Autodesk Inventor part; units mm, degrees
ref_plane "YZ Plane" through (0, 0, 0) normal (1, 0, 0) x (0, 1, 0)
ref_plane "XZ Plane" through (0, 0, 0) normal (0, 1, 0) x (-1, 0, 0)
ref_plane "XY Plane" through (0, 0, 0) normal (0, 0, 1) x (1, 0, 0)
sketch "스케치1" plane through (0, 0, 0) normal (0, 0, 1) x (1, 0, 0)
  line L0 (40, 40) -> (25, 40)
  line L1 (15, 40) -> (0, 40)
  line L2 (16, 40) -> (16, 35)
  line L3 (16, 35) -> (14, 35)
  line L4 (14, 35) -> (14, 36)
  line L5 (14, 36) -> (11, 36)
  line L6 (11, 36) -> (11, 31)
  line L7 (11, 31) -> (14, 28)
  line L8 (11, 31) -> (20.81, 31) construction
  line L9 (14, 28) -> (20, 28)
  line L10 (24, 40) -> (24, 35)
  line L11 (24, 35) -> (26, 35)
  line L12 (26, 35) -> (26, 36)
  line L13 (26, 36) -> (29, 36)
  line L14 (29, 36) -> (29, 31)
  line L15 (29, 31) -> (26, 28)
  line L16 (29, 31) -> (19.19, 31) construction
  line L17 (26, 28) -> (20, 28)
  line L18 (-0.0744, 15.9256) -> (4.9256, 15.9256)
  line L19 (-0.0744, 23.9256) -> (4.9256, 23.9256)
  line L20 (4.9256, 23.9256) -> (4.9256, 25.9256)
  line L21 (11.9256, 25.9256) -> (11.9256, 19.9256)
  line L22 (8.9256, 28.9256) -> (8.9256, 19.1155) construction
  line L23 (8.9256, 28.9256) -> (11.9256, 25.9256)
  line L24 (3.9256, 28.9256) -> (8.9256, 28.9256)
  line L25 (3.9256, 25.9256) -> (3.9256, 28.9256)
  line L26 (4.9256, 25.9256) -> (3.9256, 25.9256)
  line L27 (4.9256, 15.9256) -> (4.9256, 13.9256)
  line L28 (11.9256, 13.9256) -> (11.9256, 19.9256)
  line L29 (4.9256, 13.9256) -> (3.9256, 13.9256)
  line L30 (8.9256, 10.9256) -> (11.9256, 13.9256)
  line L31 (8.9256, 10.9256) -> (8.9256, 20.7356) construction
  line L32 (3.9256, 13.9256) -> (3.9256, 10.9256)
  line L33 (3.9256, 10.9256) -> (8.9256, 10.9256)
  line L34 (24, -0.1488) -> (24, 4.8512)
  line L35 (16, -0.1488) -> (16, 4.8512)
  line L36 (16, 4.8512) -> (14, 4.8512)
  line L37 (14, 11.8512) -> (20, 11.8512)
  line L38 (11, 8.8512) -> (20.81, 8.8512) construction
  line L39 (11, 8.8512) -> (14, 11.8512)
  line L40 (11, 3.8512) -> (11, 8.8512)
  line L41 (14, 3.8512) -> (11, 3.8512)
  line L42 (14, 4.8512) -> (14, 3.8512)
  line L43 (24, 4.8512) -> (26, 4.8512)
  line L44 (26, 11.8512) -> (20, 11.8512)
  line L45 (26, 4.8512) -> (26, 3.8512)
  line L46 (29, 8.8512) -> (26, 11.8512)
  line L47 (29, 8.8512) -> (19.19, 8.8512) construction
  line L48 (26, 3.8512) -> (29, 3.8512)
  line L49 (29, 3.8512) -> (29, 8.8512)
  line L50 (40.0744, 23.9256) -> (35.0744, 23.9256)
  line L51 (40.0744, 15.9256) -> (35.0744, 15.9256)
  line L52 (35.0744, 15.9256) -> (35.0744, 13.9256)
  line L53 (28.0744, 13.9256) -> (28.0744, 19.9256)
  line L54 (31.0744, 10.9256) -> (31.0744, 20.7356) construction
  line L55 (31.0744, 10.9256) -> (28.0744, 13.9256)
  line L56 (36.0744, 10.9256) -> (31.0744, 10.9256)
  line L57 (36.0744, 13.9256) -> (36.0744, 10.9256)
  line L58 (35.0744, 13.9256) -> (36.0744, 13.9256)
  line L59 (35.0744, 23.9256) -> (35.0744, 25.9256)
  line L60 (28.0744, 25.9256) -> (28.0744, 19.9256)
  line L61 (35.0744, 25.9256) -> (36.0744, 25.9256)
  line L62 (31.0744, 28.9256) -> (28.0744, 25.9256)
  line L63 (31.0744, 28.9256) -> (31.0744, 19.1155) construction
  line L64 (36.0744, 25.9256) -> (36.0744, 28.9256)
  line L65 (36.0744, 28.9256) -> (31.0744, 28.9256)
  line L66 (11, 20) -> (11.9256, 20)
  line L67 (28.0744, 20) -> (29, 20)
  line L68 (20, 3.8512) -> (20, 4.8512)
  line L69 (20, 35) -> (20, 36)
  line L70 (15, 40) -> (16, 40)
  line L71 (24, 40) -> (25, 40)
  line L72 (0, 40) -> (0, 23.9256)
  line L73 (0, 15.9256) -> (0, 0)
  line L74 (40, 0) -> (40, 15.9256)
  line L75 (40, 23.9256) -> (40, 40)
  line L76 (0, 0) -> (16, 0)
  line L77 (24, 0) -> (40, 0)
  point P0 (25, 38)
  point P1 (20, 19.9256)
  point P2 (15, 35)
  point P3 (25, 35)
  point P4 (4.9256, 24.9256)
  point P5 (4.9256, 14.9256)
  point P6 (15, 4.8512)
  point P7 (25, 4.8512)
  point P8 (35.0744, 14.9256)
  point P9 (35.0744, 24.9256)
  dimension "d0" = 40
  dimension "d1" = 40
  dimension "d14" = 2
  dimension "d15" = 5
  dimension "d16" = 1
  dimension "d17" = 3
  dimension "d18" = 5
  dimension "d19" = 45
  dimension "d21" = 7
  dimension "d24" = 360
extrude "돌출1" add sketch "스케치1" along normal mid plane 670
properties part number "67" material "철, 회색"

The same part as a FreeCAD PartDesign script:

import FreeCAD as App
import Part
import Sketcher
Q = App.Units.Quantity

doc = App.newDocument("Part")
body = doc.addObject("PartDesign::Body", "Body")

sketch1 = body.newObject("Sketcher::SketchObject", "Sketch")
sketch1.AttachmentSupport = (doc.getObject("XY_Plane"), [""])
sketch1.MapMode = "FlatFace"
sketch1.addGeometry([
    Part.LineSegment(App.Vector(40, 23.9256, 0), App.Vector(40, 40, 0)),
    Part.LineSegment(App.Vector(40, 40, 0), App.Vector(24, 40, 0)),
    Part.LineSegment(App.Vector(24, 40, 0), App.Vector(24, 35, 0)),
    Part.LineSegment(App.Vector(24, 35, 0), App.Vector(26, 35, 0)),
    Part.LineSegment(App.Vector(26, 35, 0), App.Vector(26, 36, 0)),
    Part.LineSegment(App.Vector(26, 36, 0), App.Vector(29, 36, 0)),
    Part.LineSegment(App.Vector(29, 36, 0), App.Vector(29, 31, 0)),
    Part.LineSegment(App.Vector(29, 31, 0), App.Vector(26, 28, 0)),
    Part.LineSegment(App.Vector(26, 28, 0), App.Vector(14, 28, 0)),
    Part.LineSegment(App.Vector(14, 28, 0), App.Vector(11, 31, 0)),
    Part.LineSegment(App.Vector(11, 31, 0), App.Vector(11, 36, 0)),
    Part.LineSegment(App.Vector(11, 36, 0), App.Vector(14, 36, 0)),
    Part.LineSegment(App.Vector(14, 36, 0), App.Vector(14, 35, 0)),
    Part.LineSegment(App.Vector(14, 35, 0), App.Vector(16, 35, 0)),
    Part.LineSegment(App.Vector(16, 35, 0), App.Vector(16, 40, 0)),
    Part.LineSegment(App.Vector(16, 40, 0), App.Vector(0, 40, 0)),
    Part.LineSegment(App.Vector(0, 40, 0), App.Vector(0, 23.9256, 0)),
    Part.LineSegment(App.Vector(0, 23.9256, 0), App.Vector(4.9256, 23.9256, 0)),
    Part.LineSegment(App.Vector(4.9256, 23.9256, 0), App.Vector(4.9256, 25.9256, 0)),
    Part.LineSegment(App.Vector(4.9256, 25.9256, 0), App.Vector(3.9256, 25.9256, 0)),
    Part.LineSegment(App.Vector(3.9256, 25.9256, 0), App.Vector(3.9256, 28.9256, 0)),
    Part.LineSegment(App.Vector(3.9256, 28.9256, 0), App.Vector(8.9256, 28.9256, 0)),
    Part.LineSegment(App.Vector(8.9256, 28.9256, 0), App.Vector(11.9256, 25.9256, 0)),
    Part.LineSegment(App.Vector(11.9256, 25.9256, 0), App.Vector(11.9256, 13.9256, 0)),
    Part.LineSegment(App.Vector(11.9256, 13.9256, 0), App.Vector(8.9256, 10.9256, 0)),
    Part.LineSegment(App.Vector(8.9256, 10.9256, 0), App.Vector(3.9256, 10.9256, 0)),
    Part.LineSegment(App.Vector(3.9256, 10.9256, 0), App.Vector(3.9256, 13.9256, 0)),
    Part.LineSegment(App.Vector(3.9256, 13.9256, 0), App.Vector(4.9256, 13.9256, 0)),
    Part.LineSegment(App.Vector(4.9256, 13.9256, 0), App.Vector(4.9256, 15.9256, 0)),
    Part.LineSegment(App.Vector(4.9256, 15.9256, 0), App.Vector(0, 15.9256, 0)),
    Part.LineSegment(App.Vector(0, 15.9256, 0), App.Vector(0, 0, 0)),
    Part.LineSegment(App.Vector(0, 0, 0), App.Vector(16, 0, 0)),
    Part.LineSegment(App.Vector(16, 0, 0), App.Vector(16, 4.8512, 0)),
    Part.LineSegment(App.Vector(16, 4.8512, 0), App.Vector(14, 4.8512, 0)),
    Part.LineSegment(App.Vector(14, 4.8512, 0), App.Vector(14, 3.8512, 0)),
    Part.LineSegment(App.Vector(14, 3.8512, 0), App.Vector(11, 3.8512, 0)),
    Part.LineSegment(App.Vector(11, 3.8512, 0), App.Vector(11, 8.8512, 0)),
    Part.LineSegment(App.Vector(11, 8.8512, 0), App.Vector(14, 11.8512, 0)),
    Part.LineSegment(App.Vector(14, 11.8512, 0), App.Vector(26, 11.8512, 0)),
    Part.LineSegment(App.Vector(26, 11.8512, 0), App.Vector(29, 8.8512, 0)),
    Part.LineSegment(App.Vector(29, 8.8512, 0), App.Vector(29, 3.8512, 0)),
    Part.LineSegment(App.Vector(29, 3.8512, 0), App.Vector(26, 3.8512, 0)),
    Part.LineSegment(App.Vector(26, 3.8512, 0), App.Vector(26, 4.8512, 0)),
    Part.LineSegment(App.Vector(26, 4.8512, 0), App.Vector(24, 4.8512, 0)),
    Part.LineSegment(App.Vector(24, 4.8512, 0), App.Vector(24, 0, 0)),
    Part.LineSegment(App.Vector(24, 0, 0), App.Vector(40, 0, 0)),
    Part.LineSegment(App.Vector(40, 0, 0), App.Vector(40, 15.9256, 0)),
    Part.LineSegment(App.Vector(40, 15.9256, 0), App.Vector(35.0744, 15.9256, 0)),
    Part.LineSegment(App.Vector(35.0744, 15.9256, 0), App.Vector(35.0744, 13.9256, 0)),
    Part.LineSegment(App.Vector(35.0744, 13.9256, 0), App.Vector(36.0744, 13.9256, 0)),
    Part.LineSegment(App.Vector(36.0744, 13.9256, 0), App.Vector(36.0744, 10.9256, 0)),
    Part.LineSegment(App.Vector(36.0744, 10.9256, 0), App.Vector(31.0744, 10.9256, 0)),
    Part.LineSegment(App.Vector(31.0744, 10.9256, 0), App.Vector(28.0744, 13.9256, 0)),
    Part.LineSegment(App.Vector(28.0744, 13.9256, 0), App.Vector(28.0744, 25.9256, 0)),
    Part.LineSegment(App.Vector(28.0744, 25.9256, 0), App.Vector(31.0744, 28.9256, 0)),
    Part.LineSegment(App.Vector(31.0744, 28.9256, 0), App.Vector(36.0744, 28.9256, 0)),
    Part.LineSegment(App.Vector(36.0744, 28.9256, 0), App.Vector(36.0744, 25.9256, 0)),
    Part.LineSegment(App.Vector(36.0744, 25.9256, 0), App.Vector(35.0744, 25.9256, 0)),
    Part.LineSegment(App.Vector(35.0744, 25.9256, 0), App.Vector(35.0744, 23.9256, 0)),
    Part.LineSegment(App.Vector(35.0744, 23.9256, 0), App.Vector(40, 23.9256, 0)),
], False)
sketch1.addConstraint([
    Sketcher.Constraint("Coincident", 0, 2, 1, 1),
    Sketcher.Constraint("Coincident", 1, 2, 2, 1),
    Sketcher.Constraint("Coincident", 2, 2, 3, 1),
    Sketcher.Constraint("Coincident", 3, 2, 4, 1),
    Sketcher.Constraint("Coincident", 4, 2, 5, 1),
    Sketcher.Constraint("Coincident", 5, 2, 6, 1),
    Sketcher.Constraint("Coincident", 6, 2, 7, 1),
    Sketcher.Constraint("Coincident", 7, 2, 8, 1),
    Sketcher.Constraint("Coincident", 8, 2, 9, 1),
    Sketcher.Constraint("Coincident", 9, 2, 10, 1),
    Sketcher.Constraint("Coincident", 10, 2, 11, 1),
    Sketcher.Constraint("Coincident", 11, 2, 12, 1),
    Sketcher.Constraint("Coincident", 12, 2, 13, 1),
    Sketcher.Constraint("Coincident", 13, 2, 14, 1),
    Sketcher.Constraint("Coincident", 14, 2, 15, 1),
    Sketcher.Constraint("Coincident", 15, 2, 16, 1),
    Sketcher.Constraint("Coincident", 16, 2, 17, 1),
    Sketcher.Constraint("Coincident", 17, 2, 18, 1),
    Sketcher.Constraint("Coincident", 18, 2, 19, 1),
    Sketcher.Constraint("Coincident", 19, 2, 20, 1),
    Sketcher.Constraint("Coincident", 20, 2, 21, 1),
    Sketcher.Constraint("Coincident", 21, 2, 22, 1),
    Sketcher.Constraint("Coincident", 22, 2, 23, 1),
    Sketcher.Constraint("Coincident", 23, 2, 24, 1),
    Sketcher.Constraint("Coincident", 24, 2, 25, 1),
    Sketcher.Constraint("Coincident", 25, 2, 26, 1),
    Sketcher.Constraint("Coincident", 26, 2, 27, 1),
    Sketcher.Constraint("Coincident", 27, 2, 28, 1),
    Sketcher.Constraint("Coincident", 28, 2, 29, 1),
    Sketcher.Constraint("Coincident", 29, 2, 30, 1),
    Sketcher.Constraint("Coincident", 30, 2, 31, 1),
    Sketcher.Constraint("Coincident", 31, 2, 32, 1),
    Sketcher.Constraint("Coincident", 32, 2, 33, 1),
    Sketcher.Constraint("Coincident", 33, 2, 34, 1),
    Sketcher.Constraint("Coincident", 34, 2, 35, 1),
    Sketcher.Constraint("Coincident", 35, 2, 36, 1),
    Sketcher.Constraint("Coincident", 36, 2, 37, 1),
    Sketcher.Constraint("Coincident", 37, 2, 38, 1),
    Sketcher.Constraint("Coincident", 38, 2, 39, 1),
    Sketcher.Constraint("Coincident", 39, 2, 40, 1),
    Sketcher.Constraint("Coincident", 40, 2, 41, 1),
    Sketcher.Constraint("Coincident", 41, 2, 42, 1),
    Sketcher.Constraint("Coincident", 42, 2, 43, 1),
    Sketcher.Constraint("Coincident", 43, 2, 44, 1),
    Sketcher.Constraint("Coincident", 44, 2, 45, 1),
    Sketcher.Constraint("Coincident", 45, 2, 46, 1),
    Sketcher.Constraint("Coincident", 46, 2, 47, 1),
    Sketcher.Constraint("Coincident", 47, 2, 48, 1),
    Sketcher.Constraint("Coincident", 48, 2, 49, 1),
    Sketcher.Constraint("Coincident", 49, 2, 50, 1),
    Sketcher.Constraint("Coincident", 50, 2, 51, 1),
    Sketcher.Constraint("Coincident", 51, 2, 52, 1),
    Sketcher.Constraint("Coincident", 52, 2, 53, 1),
    Sketcher.Constraint("Coincident", 53, 2, 54, 1),
    Sketcher.Constraint("Coincident", 54, 2, 55, 1),
    Sketcher.Constraint("Coincident", 55, 2, 56, 1),
    Sketcher.Constraint("Coincident", 56, 2, 57, 1),
    Sketcher.Constraint("Coincident", 57, 2, 58, 1),
    Sketcher.Constraint("Coincident", 58, 2, 59, 1),
    Sketcher.Constraint("Coincident", 59, 2, 0, 1),
    Sketcher.Constraint("Vertical", 0),
    Sketcher.Constraint("Horizontal", 1),
    Sketcher.Constraint("Vertical", 2),
    Sketcher.Constraint("Horizontal", 3),
    Sketcher.Constraint("Vertical", 4),
    Sketcher.Constraint("Horizontal", 5),
    Sketcher.Constraint("Vertical", 6),
    Sketcher.Constraint("Horizontal", 8),
    Sketcher.Constraint("Vertical", 10),
    Sketcher.Constraint("Horizontal", 11),
    Sketcher.Constraint("Vertical", 12),
    Sketcher.Constraint("Horizontal", 13),
    Sketcher.Constraint("Vertical", 14),
    Sketcher.Constraint("Horizontal", 15),
    Sketcher.Constraint("Vertical", 16),
    Sketcher.Constraint("Horizontal", 17),
    Sketcher.Constraint("Vertical", 18),
    Sketcher.Constraint("Horizontal", 19),
    Sketcher.Constraint("Vertical", 20),
    Sketcher.Constraint("Horizontal", 21),
    Sketcher.Constraint("Vertical", 23),
    Sketcher.Constraint("Horizontal", 25),
    Sketcher.Constraint("Vertical", 26),
    Sketcher.Constraint("Horizontal", 27),
    Sketcher.Constraint("Vertical", 28),
    Sketcher.Constraint("Horizontal", 29),
    Sketcher.Constraint("Vertical", 30),
    Sketcher.Constraint("Horizontal", 31),
    Sketcher.Constraint("Vertical", 32),
    Sketcher.Constraint("Horizontal", 33),
    Sketcher.Constraint("Vertical", 34),
    Sketcher.Constraint("Horizontal", 35),
    Sketcher.Constraint("Vertical", 36),
    Sketcher.Constraint("Horizontal", 38),
    Sketcher.Constraint("Vertical", 40),
    Sketcher.Constraint("Horizontal", 41),
    Sketcher.Constraint("Vertical", 42),
    Sketcher.Constraint("Horizontal", 43),
    Sketcher.Constraint("Vertical", 44),
    Sketcher.Constraint("Horizontal", 45),
    Sketcher.Constraint("Vertical", 46),
    Sketcher.Constraint("Horizontal", 47),
    Sketcher.Constraint("Vertical", 48),
    Sketcher.Constraint("Horizontal", 49),
    Sketcher.Constraint("Vertical", 50),
    Sketcher.Constraint("Horizontal", 51),
    Sketcher.Constraint("Vertical", 53),
    Sketcher.Constraint("Horizontal", 55),
    Sketcher.Constraint("Vertical", 56),
    Sketcher.Constraint("Horizontal", 57),
    Sketcher.Constraint("Vertical", 58),
    Sketcher.Constraint("Horizontal", 59),
    Sketcher.Constraint("Coincident", 30, 2, -1, 1),
    Sketcher.Constraint("PointOnObject", 15, 2, -2),
    Sketcher.Constraint("PointOnObject", 44, 2, -1),
    Sketcher.Constraint("Perpendicular", 7, 9),
    Sketcher.Constraint("Parallel", 9, 22),
    Sketcher.Constraint("Perpendicular", 22, 24),
    Sketcher.Constraint("Parallel", 24, 37),
    Sketcher.Constraint("Perpendicular", 37, 39),
    Sketcher.Constraint("Parallel", 39, 52),
    Sketcher.Constraint("Perpendicular", 52, 54),
    Sketcher.Constraint("Horizontal", 6, 2, 9, 2),
    Sketcher.Constraint("Horizontal", 5, 2, 10, 2),
    Sketcher.Constraint("Horizontal", 3, 2, 12, 2),
    Sketcher.Constraint("Horizontal", 1, 2, 14, 2),
    Sketcher.Constraint("Horizontal", 19, 2, 22, 2),
    Sketcher.Constraint("Horizontal", 23, 2, 26, 2),
    Sketcher.Constraint("Horizontal", 36, 2, 39, 2),
    Sketcher.Constraint("Horizontal", 35, 2, 40, 2),
    Sketcher.Constraint("Horizontal", 33, 2, 42, 2),
    Sketcher.Constraint("Horizontal", 29, 2, 46, 2),
    Sketcher.Constraint("Horizontal", 27, 2, 48, 2),
    Sketcher.Constraint("Horizontal", 25, 2, 50, 2),
    Sketcher.Constraint("Horizontal", 49, 2, 52, 2),
    Sketcher.Constraint("Horizontal", 22, 2, 53, 2),
    Sketcher.Constraint("Horizontal", 21, 2, 54, 2),
    Sketcher.Constraint("Horizontal", 53, 2, 56, 2),
    Sketcher.Constraint("Horizontal", 17, 2, 58, 2),
    Sketcher.Constraint("Vertical", 4, 2, 7, 2),
    Sketcher.Constraint("Vertical", 8, 2, 11, 2),
    Sketcher.Constraint("Vertical", 21, 2, 24, 2),
    Sketcher.Constraint("Vertical", 20, 2, 25, 2),
    Sketcher.Constraint("Vertical", 18, 2, 27, 2),
    Sketcher.Constraint("Vertical", 14, 2, 31, 2),
    Sketcher.Constraint("Vertical", 12, 2, 33, 2),
    Sketcher.Constraint("Vertical", 10, 2, 35, 2),
    Sketcher.Constraint("Vertical", 34, 2, 37, 2),
    Sketcher.Constraint("Vertical", 7, 2, 38, 2),
    Sketcher.Constraint("Vertical", 6, 2, 39, 2),
    Sketcher.Constraint("Vertical", 38, 2, 41, 2),
    Sketcher.Constraint("Vertical", 2, 2, 43, 2),
    Sketcher.Constraint("Vertical", 0, 2, 45, 2),
    Sketcher.Constraint("Vertical", 50, 2, 55, 2),
    Sketcher.Constraint("Vertical", 48, 2, 57, 2),
    Sketcher.Constraint("Equal", 3, 13),
    Sketcher.Constraint("Equal", 1, 15),
    Sketcher.Constraint("Equal", 29, 47),
    Sketcher.Constraint("Equal", 27, 49),
    Sketcher.Constraint("Equal", 25, 51),
    Sketcher.Constraint("Equal", 55, 2),
    Sketcher.Constraint("Equal", 57, 4),
    Sketcher.Constraint("Equal", 2, 6),
    Sketcher.Constraint("Equal", 43, 18),
    Sketcher.Constraint("Equal", 41, 20),
    Sketcher.Constraint("Equal", 38, 23),
    Sketcher.Constraint("Equal", 18, 28),
    Sketcher.Constraint("Equal", 12, 34),
    Sketcher.Constraint("Equal", 14, 36),
    Sketcher.Constraint("DistanceX", 3, 1, 3, 2, Q("2 mm")),
    Sketcher.Constraint("DistanceX", 5, 1, 5, 2, Q("3 mm")),
    Sketcher.Constraint("DistanceX", 19, 2, 19, 1, Q("1 mm")),
    Sketcher.Constraint("DistanceX", 21, 1, 21, 2, Q("5 mm")),
    Sketcher.Constraint("DistanceX", -1, 1, 0, 2, Q("40 mm")),
    Sketcher.Constraint("DistanceY", -1, 1, 0, 2, Q("40 mm")),
    Sketcher.Constraint("DistanceX", 1, 2, 1, 1, Q("16 mm")),
    Sketcher.Constraint("DistanceX", 17, 1, 17, 2, Q("4.9256 mm")),
    Sketcher.Constraint("DistanceY", 0, 1, 0, 2, Q("16.0744 mm")),
    Sketcher.Constraint("DistanceY", 32, 1, 32, 2, Q("4.8512 mm")),
])
pad1 = body.newObject("PartDesign::Pad", "Pad")
pad1.Profile = sketch1
pad1.Length = 670
pad1.Midplane = True

doc.recompute()
